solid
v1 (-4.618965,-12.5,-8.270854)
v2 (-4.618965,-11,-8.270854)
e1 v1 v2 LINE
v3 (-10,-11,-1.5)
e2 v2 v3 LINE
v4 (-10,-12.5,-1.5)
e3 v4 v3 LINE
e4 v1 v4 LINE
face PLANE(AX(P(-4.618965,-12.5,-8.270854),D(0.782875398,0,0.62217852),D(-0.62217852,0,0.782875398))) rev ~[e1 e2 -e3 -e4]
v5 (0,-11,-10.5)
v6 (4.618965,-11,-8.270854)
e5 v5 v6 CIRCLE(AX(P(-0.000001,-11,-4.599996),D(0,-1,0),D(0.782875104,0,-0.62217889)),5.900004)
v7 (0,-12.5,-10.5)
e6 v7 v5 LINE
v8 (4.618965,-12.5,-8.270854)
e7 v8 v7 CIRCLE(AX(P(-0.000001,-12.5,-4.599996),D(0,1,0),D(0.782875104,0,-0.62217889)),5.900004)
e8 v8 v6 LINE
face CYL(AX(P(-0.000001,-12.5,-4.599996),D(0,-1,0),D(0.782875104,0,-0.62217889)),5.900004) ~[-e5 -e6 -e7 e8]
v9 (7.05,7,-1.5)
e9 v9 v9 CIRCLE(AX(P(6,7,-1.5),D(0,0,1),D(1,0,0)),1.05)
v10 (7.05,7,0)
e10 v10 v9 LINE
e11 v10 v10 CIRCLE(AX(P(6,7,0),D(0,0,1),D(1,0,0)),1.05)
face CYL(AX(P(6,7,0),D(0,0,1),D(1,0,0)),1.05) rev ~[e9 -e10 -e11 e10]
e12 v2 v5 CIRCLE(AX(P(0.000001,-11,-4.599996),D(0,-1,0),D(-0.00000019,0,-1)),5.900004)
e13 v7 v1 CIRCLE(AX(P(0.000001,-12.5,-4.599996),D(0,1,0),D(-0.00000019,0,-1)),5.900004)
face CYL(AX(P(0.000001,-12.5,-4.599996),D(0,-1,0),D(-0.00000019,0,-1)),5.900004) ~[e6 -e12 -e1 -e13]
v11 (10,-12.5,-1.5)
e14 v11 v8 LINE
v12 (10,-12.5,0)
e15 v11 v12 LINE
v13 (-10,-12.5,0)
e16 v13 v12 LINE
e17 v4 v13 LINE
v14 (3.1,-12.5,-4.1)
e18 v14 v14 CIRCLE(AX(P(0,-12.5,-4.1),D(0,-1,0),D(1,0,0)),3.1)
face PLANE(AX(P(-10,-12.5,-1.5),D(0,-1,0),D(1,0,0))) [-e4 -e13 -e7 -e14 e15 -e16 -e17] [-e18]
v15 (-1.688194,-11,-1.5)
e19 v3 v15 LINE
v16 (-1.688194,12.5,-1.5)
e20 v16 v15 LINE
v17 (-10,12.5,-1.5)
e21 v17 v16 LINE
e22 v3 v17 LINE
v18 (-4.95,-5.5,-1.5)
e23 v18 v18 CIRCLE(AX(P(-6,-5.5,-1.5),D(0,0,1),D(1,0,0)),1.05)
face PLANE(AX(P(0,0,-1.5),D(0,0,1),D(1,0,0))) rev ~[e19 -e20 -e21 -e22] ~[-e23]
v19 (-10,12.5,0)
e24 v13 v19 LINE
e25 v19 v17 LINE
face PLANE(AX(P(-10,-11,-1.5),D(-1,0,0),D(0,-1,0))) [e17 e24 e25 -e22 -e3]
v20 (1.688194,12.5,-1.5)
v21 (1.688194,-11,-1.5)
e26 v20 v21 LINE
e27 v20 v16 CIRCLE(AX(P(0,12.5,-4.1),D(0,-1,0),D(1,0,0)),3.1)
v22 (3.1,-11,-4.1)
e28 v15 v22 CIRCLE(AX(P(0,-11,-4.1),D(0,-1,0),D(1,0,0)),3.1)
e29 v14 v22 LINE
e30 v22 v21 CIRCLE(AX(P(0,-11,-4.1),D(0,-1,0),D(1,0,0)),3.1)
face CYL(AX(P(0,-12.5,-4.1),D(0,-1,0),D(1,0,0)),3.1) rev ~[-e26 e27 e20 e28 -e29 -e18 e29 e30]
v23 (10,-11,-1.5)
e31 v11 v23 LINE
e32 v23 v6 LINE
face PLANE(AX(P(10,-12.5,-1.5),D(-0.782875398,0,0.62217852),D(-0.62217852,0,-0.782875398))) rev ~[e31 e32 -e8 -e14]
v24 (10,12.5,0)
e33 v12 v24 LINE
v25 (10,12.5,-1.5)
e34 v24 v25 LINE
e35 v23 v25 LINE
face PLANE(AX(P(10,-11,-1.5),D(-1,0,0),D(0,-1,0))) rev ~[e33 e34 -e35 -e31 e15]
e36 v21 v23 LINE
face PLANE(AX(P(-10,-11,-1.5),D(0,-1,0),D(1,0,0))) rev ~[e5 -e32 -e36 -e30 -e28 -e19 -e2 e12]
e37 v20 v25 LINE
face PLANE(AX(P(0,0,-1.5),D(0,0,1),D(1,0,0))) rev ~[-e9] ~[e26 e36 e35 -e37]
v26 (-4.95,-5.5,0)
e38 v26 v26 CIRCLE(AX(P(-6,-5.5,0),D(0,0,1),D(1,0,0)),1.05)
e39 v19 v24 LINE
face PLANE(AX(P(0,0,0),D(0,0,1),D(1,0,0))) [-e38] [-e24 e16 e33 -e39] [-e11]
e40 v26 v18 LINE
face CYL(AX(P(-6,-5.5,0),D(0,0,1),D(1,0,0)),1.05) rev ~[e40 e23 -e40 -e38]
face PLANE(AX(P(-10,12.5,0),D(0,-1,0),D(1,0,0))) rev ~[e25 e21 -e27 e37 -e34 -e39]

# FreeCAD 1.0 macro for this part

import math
import FreeCAD as App
import Part
import Sketcher
from FreeCAD import Vector


def add_polygon(sketch, points):
    """Adds a closed chain of lines whose ends are joined by coincident constraints."""
    first, n = sketch.GeometryCount, len(points)
    for a, b in zip(points, points[1:] + points[:1]):
        sketch.addGeometry(Part.LineSegment(App.Vector(*a, 0), App.Vector(*b, 0)), False)
    for i in range(n):
        sketch.addConstraint(Sketcher.Constraint("Coincident", first + i, 2, first + (i + 1) % n, 1))

doc = App.newDocument("Part")
body = doc.addObject("PartDesign::Body", "Body")

sketch1 = doc.addObject("Sketcher::SketchObject", "Sketch")
body.addObject(sketch1)
sketch1.AttachmentSupport = (doc.XY_Plane, [""])
sketch1.MapMode = "FlatFace"
add_polygon(sketch1, [(-10, 12.5), (-10, -12.5), (10, -12.5), (10, 12.5)])
sketch1.addGeometry(Part.Circle(Vector(-6, -5.5, 0), Vector(0, 0, 1), 1.1), False)
sketch1.addGeometry(Part.Circle(Vector(6, 7, 0), Vector(0, 0, 1), 1.1), False)
sketch1.addConstraint([
    Sketcher.Constraint("Vertical", 0),
    Sketcher.Constraint("Horizontal", 1),
    Sketcher.Constraint("Vertical", 2),
    Sketcher.Constraint("Horizontal", 3),
    Sketcher.Constraint("Equal", 4, 5),
    Sketcher.Constraint("Symmetric", 0, 2, 2, 2, -1, 1),
    Sketcher.Constraint("Diameter", 4, 2.1),
    Sketcher.Constraint("DistanceX", 1, 1, 1, 2, 20.0),
    Sketcher.Constraint("DistanceY", 0, 2, 0, 1, 25.0),
    Sketcher.Constraint("DistanceX", 4, 3, -1, 1, 6.0),
    Sketcher.Constraint("DistanceX", -1, 1, 5, 3, 6.0),
    Sketcher.Constraint("DistanceY", -1, 1, 5, 3, 7.0),
    Sketcher.Constraint("DistanceY", 0, 2, 4, 3, 7.0),
])
pad1 = doc.addObject("PartDesign::Pad", "Pad")
body.addObject(pad1)
pad1.Profile = sketch1
pad1.Length = 1.5
pad1.Reversed = True

sketch2 = doc.addObject("Sketcher::SketchObject", "Sketch001")
body.addObject(sketch2)
sketch2.AttachmentSupport = (doc.XY_Plane, [""])
sketch2.MapMode = "FlatFace"
sketch2.AttachmentOffset = App.Placement(Vector(0, 0, -1.5), App.Rotation())
add_polygon(sketch2, [(-10, -12.5), (-10, -11), (10, -11), (10, -12.5)])
sketch2.addConstraint([
    Sketcher.Constraint("Vertical", 0),
    Sketcher.Constraint("Horizontal", 1),
    Sketcher.Constraint("Vertical", 2),
    Sketcher.Constraint("Horizontal", 3),
    Sketcher.Constraint("DistanceX", 1, 1, 1, 2, 20.0),
    Sketcher.Constraint("DistanceY", 0, 1, 0, 2, 1.5),
    Sketcher.Constraint("DistanceX", 0, 2, -1, 1, 10.0),
    Sketcher.Constraint("DistanceY", 0, 2, -1, 1, 11.0),
])
pad2 = doc.addObject("PartDesign::Pad", "Pad001")
body.addObject(pad2)
pad2.Profile = sketch2
pad2.Length = 9
pad2.Reversed = True

sketch3 = doc.addObject("Sketcher::SketchObject", "Sketch002")
body.addObject(sketch3)
sketch3.AttachmentSupport = (doc.XZ_Plane, [""])
sketch3.MapMode = "FlatFace"
sketch3.AttachmentOffset = App.Placement(Vector(0, 0, 12.5), App.Rotation())
sketch3.addGeometry([
    Part.Circle(Vector(0, -4.1, 0), Vector(0, 0, 1), 3.1),
    Part.LineSegment(Vector(-4.6, -8.3, 0), Vector(-10, -1.5, 0)),
    Part.LineSegment(Vector(-10, -1.5, 0), Vector(-10, -10.5, 0)),
    Part.LineSegment(Vector(-10, -10.5, 0), Vector(0, -10.5, 0)),
    Part.ArcOfCircle(Part.Circle(Vector(0, -4.6, 0), Vector(0, 0, 1), 5.9), math.radians(-142), math.radians(-90)),
    Part.ArcOfCircle(Part.Circle(Vector(0, -4.6, 0), Vector(0, 0, 1), 5.9), math.radians(-90), math.radians(-38)),
    Part.LineSegment(Vector(0, -10.5, 0), Vector(10, -10.5, 0)),
    Part.LineSegment(Vector(10, -10.5, 0), Vector(10, -1.5, 0)),
    Part.LineSegment(Vector(10, -1.5, 0), Vector(4.6, -8.3, 0)),
], False)
sketch3.addConstraint([
    Sketcher.Constraint("Coincident", 1, 2, 2, 1),
    Sketcher.Constraint("Coincident", 2, 2, 3, 1),
    Sketcher.Constraint("Tangent", 3, 2, 4, 2),
    Sketcher.Constraint("Tangent", 4, 1, 1, 1),
    Sketcher.Constraint("Tangent", 5, 1, 6, 1),
    Sketcher.Constraint("Coincident", 6, 2, 7, 1),
    Sketcher.Constraint("Coincident", 7, 2, 8, 1),
    Sketcher.Constraint("Tangent", 8, 2, 5, 2),
    Sketcher.Constraint("Vertical", 2),
    Sketcher.Constraint("Horizontal", 3),
    Sketcher.Constraint("Horizontal", 6),
    Sketcher.Constraint("Vertical", 7),
    Sketcher.Constraint("Coincident", 5, 3, 4, 3),
    Sketcher.Constraint("Equal", 4, 5),
    Sketcher.Constraint("Symmetric", 1, 2, 7, 2, -2),
    Sketcher.Constraint("PointOnObject", 0, 3, -2),
    Sketcher.Constraint("PointOnObject", 4, 3, -2),
    Sketcher.Constraint("Diameter", 0, 6.2),
    Sketcher.Constraint("DistanceX", 3, 1, 3, 2, 10.0),
    Sketcher.Constraint("DistanceY", 2, 2, 2, 1, 9.0),
    Sketcher.Constraint("DistanceY", 0, 3, -1, 1, 4.1),
    Sketcher.Constraint("DistanceY", 1, 2, -1, 1, 1.5),
    Sketcher.Constraint("Radius", 4, 5.900004),
])
pocket1 = doc.addObject("PartDesign::Pocket", "Pocket")
body.addObject(pocket1)
pocket1.Profile = sketch3
pocket1.Length = 30

doc.recompute()
